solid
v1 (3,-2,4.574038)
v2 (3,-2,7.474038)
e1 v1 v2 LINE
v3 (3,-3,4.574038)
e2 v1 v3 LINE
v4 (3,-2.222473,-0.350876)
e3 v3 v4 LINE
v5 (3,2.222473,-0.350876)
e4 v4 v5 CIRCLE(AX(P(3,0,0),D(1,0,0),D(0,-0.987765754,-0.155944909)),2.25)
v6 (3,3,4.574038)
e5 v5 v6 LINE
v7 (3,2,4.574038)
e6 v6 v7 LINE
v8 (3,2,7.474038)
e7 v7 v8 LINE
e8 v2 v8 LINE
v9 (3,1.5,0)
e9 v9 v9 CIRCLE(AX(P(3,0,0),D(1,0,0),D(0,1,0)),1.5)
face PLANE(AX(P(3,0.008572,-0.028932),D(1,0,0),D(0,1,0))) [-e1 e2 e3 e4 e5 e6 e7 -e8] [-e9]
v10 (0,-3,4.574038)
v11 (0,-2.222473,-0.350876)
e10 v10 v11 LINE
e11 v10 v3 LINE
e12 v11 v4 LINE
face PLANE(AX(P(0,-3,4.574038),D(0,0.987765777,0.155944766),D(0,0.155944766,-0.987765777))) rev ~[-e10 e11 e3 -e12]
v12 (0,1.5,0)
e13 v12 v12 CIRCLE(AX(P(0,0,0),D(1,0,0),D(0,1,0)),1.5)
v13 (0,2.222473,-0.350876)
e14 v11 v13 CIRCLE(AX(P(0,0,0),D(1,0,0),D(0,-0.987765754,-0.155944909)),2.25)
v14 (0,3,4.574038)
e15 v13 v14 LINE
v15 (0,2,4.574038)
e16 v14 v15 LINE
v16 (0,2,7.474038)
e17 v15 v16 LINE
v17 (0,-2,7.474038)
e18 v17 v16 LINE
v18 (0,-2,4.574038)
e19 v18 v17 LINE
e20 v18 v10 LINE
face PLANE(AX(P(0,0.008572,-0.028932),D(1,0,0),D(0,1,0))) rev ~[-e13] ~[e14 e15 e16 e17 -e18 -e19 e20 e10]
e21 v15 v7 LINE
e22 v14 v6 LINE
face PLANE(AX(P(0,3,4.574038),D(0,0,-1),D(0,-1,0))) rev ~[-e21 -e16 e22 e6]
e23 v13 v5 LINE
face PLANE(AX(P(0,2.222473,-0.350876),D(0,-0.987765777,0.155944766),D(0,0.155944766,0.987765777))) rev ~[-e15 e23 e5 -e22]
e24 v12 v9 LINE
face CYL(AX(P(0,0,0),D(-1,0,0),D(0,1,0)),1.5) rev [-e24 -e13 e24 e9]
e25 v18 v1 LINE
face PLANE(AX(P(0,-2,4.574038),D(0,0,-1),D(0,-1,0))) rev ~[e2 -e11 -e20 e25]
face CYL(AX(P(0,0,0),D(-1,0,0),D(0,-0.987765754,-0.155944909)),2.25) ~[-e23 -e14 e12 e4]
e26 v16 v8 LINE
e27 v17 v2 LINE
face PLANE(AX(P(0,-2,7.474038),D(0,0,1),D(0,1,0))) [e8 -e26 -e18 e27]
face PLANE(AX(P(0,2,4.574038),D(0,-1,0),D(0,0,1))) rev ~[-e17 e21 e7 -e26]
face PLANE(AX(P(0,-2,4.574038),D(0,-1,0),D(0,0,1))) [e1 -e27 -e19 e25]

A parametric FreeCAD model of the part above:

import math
import FreeCAD as App
import Part
import Sketcher
from FreeCAD import Vector

doc = App.newDocument("Part")
body = doc.addObject("PartDesign::Body", "Body")

# Sketch on YZ plane
sketch1 = doc.addObject("Sketcher::SketchObject", "Sketch")
body.addObject(sketch1)
sketch1.AttachmentSupport = (doc.YZ_Plane, [""])
sketch1.MapMode = "FlatFace"
sketch1.addGeometry([
    Part.ArcOfCircle(Part.Circle(Vector(0, 0, 0), Vector(0, 0, 1), 2.3), math.radians(-171), math.radians(-9)),  # 0
    Part.LineSegment(Vector(2.2, -0.4, 0), Vector(3, 4.6, 0)),  # 1
    Part.LineSegment(Vector(3, 4.6, 0), Vector(2, 4.6, 0)),  # 2
    Part.LineSegment(Vector(2, 4.6, 0), Vector(2, 7.5, 0)),  # 3
    Part.LineSegment(Vector(2, 7.5, 0), Vector(-2, 7.5, 0)),  # 4
    Part.LineSegment(Vector(-2, 7.5, 0), Vector(-2, 4.6, 0)),  # 5
    Part.LineSegment(Vector(-2, 4.6, 0), Vector(-3, 4.6, 0)),  # 6
    Part.LineSegment(Vector(-3, 4.6, 0), Vector(-2.2, -0.4, 0)),  # 7
    Part.Circle(Vector(0, 0, 0), Vector(0, 0, 1), 1.5),  # 8
], False)
sketch1.addConstraint([
    Sketcher.Constraint("Tangent", 0, 2, 1, 1),
    Sketcher.Constraint("Coincident", 1, 2, 2, 1),
    Sketcher.Constraint("Coincident", 2, 2, 3, 1),
    Sketcher.Constraint("Coincident", 3, 2, 4, 1),
    Sketcher.Constraint("Coincident", 4, 2, 5, 1),
    Sketcher.Constraint("Coincident", 5, 2, 6, 1),
    Sketcher.Constraint("Coincident", 6, 2, 7, 1),
    Sketcher.Constraint("Tangent", 7, 2, 0, 1),
    Sketcher.Constraint("Horizontal", 2),
    Sketcher.Constraint("Vertical", 3),
    Sketcher.Constraint("Horizontal", 4),
    Sketcher.Constraint("Vertical", 5),
    Sketcher.Constraint("Horizontal", 6),
    Sketcher.Constraint("Coincident", 0, 3, -1, 1),
    Sketcher.Constraint("Coincident", 8, 3, -1, 1),
    Sketcher.Constraint("Symmetric", 2, 2, 5, 2, -2),
    Sketcher.Constraint("Horizontal", 0, 2, 7, 2),
    Sketcher.Constraint("Diameter", 8, 3.0),
    Sketcher.Constraint("DistanceX", 2, 2, 2, 1, 1.0),
    Sketcher.Constraint("DistanceX", 4, 2, 4, 1, 4.0),
    Sketcher.Constraint("Radius", 0, 2.25),
    Sketcher.Constraint("DistanceY", 3, 1, 3, 2, 2.9),
    Sketcher.Constraint("DistanceY", -1, 1, 3, 2, 7.474038),
])
pad1 = doc.addObject("PartDesign::Pad", "Pad")
body.addObject(pad1)
pad1.Profile = sketch1
pad1.Length = 3

doc.recompute()
